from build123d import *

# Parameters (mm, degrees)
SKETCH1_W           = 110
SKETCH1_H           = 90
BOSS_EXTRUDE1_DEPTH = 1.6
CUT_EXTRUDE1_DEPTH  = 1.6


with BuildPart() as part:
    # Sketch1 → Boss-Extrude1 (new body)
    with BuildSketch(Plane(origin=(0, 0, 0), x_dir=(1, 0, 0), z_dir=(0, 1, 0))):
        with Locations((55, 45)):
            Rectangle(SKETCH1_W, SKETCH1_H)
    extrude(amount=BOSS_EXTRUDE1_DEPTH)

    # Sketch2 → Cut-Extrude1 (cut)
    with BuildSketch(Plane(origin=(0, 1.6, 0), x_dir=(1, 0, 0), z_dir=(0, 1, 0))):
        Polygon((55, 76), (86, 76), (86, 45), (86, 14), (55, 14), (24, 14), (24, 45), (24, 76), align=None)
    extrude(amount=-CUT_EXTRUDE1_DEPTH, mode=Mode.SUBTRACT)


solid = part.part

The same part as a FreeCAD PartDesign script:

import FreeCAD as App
import Part
import Sketcher
from FreeCAD import Vector
Q = App.Units.Quantity

doc = App.newDocument("Part")
body = doc.addObject("PartDesign::Body", "Body")

# Sketch on XZ plane
sketch1 = body.newObject("Sketcher::SketchObject", "Sketch")
sketch1.AttachmentSupport = (doc.getObject("XZ_Plane"), [""])
sketch1.MapMode = "FlatFace"
sketch1.addGeometry(Part.LineSegment(Vector(0, -90, 0), Vector(0, 0, 0)), False)
sketch1.addGeometry(Part.LineSegment(Vector(0, 0, 0), Vector(110, 0, 0)), False)
sketch1.addGeometry(Part.LineSegment(Vector(110, 0, 0), Vector(110, -90, 0)), False)
sketch1.addGeometry(Part.LineSegment(Vector(110, -90, 0), Vector(0, -90, 0)), False)
sketch1.addConstraint(Sketcher.Constraint("Coincident", 0, 2, 1, 1))
sketch1.addConstraint(Sketcher.Constraint("Coincident", 1, 2, 2, 1))
sketch1.addConstraint(Sketcher.Constraint("Coincident", 2, 2, 3, 1))
sketch1.addConstraint(Sketcher.Constraint("Coincident", 3, 2, 0, 1))
sketch1.addConstraint(Sketcher.Constraint("Vertical", 0))
sketch1.addConstraint(Sketcher.Constraint("Horizontal", 1))
sketch1.addConstraint(Sketcher.Constraint("Vertical", 2))
sketch1.addConstraint(Sketcher.Constraint("Horizontal", 3))
sketch1.addConstraint(Sketcher.Constraint("Coincident", 0, 2, -1, 1))
sketch1.addConstraint(Sketcher.Constraint("DistanceX", 1, 1, 1, 2, Q("110 mm")))
sketch1.addConstraint(Sketcher.Constraint("DistanceY", 0, 1, 0, 2, Q("90 mm")))
pad1 = body.newObject("PartDesign::Pad", "Pad")
pad1.Profile = sketch1
pad1.Length = 1.6
pad1.Reversed = True

# Sketch on XZ plane
sketch2 = body.newObject("Sketcher::SketchObject", "Sketch001")
sketch2.AttachmentSupport = (doc.getObject("XZ_Plane"), [""])
sketch2.MapMode = "FlatFace"
sketch2.AttachmentOffset = App.Placement(Vector(0, 0, -1.6), App.Rotation())
sketch2.addGeometry(Part.LineSegment(Vector(86, -76, 0), Vector(24, -76, 0)), False)
sketch2.addGeometry(Part.LineSegment(Vector(24, -76, 0), Vector(24, -14, 0)), False)
sketch2.addGeometry(Part.LineSegment(Vector(24, -14, 0), Vector(86, -14, 0)), False)
sketch2.addGeometry(Part.LineSegment(Vector(86, -14, 0), Vector(86, -76, 0)), False)
sketch2.addConstraint(Sketcher.Constraint("Coincident", 0, 2, 1, 1))
sketch2.addConstraint(Sketcher.Constraint("Coincident", 1, 2, 2, 1))
sketch2.addConstraint(Sketcher.Constraint("Coincident", 2, 2, 3, 1))
sketch2.addConstraint(Sketcher.Constraint("Coincident", 3, 2, 0, 1))
sketch2.addConstraint(Sketcher.Constraint("Horizontal", 0))
sketch2.addConstraint(Sketcher.Constraint("Vertical", 1))
sketch2.addConstraint(Sketcher.Constraint("Horizontal", 2))
sketch2.addConstraint(Sketcher.Constraint("Vertical", 3))
sketch2.addConstraint(Sketcher.Constraint("Equal", 2, 1))
sketch2.addConstraint(Sketcher.Constraint("DistanceX", 0, 2, 0, 1, Q("62 mm")))
sketch2.addConstraint(Sketcher.Constraint("DistanceX", -1, 1, 0, 2, Q("24 mm")))
sketch2.addConstraint(Sketcher.Constraint("DistanceY", 0, 2, -1, 1, Q("76 mm")))
pocket1 = body.newObject("PartDesign::Pocket", "Pocket")
pocket1.Profile = sketch2
pocket1.Length = 1.6
pocket1.Reversed = True

doc.recompute()
